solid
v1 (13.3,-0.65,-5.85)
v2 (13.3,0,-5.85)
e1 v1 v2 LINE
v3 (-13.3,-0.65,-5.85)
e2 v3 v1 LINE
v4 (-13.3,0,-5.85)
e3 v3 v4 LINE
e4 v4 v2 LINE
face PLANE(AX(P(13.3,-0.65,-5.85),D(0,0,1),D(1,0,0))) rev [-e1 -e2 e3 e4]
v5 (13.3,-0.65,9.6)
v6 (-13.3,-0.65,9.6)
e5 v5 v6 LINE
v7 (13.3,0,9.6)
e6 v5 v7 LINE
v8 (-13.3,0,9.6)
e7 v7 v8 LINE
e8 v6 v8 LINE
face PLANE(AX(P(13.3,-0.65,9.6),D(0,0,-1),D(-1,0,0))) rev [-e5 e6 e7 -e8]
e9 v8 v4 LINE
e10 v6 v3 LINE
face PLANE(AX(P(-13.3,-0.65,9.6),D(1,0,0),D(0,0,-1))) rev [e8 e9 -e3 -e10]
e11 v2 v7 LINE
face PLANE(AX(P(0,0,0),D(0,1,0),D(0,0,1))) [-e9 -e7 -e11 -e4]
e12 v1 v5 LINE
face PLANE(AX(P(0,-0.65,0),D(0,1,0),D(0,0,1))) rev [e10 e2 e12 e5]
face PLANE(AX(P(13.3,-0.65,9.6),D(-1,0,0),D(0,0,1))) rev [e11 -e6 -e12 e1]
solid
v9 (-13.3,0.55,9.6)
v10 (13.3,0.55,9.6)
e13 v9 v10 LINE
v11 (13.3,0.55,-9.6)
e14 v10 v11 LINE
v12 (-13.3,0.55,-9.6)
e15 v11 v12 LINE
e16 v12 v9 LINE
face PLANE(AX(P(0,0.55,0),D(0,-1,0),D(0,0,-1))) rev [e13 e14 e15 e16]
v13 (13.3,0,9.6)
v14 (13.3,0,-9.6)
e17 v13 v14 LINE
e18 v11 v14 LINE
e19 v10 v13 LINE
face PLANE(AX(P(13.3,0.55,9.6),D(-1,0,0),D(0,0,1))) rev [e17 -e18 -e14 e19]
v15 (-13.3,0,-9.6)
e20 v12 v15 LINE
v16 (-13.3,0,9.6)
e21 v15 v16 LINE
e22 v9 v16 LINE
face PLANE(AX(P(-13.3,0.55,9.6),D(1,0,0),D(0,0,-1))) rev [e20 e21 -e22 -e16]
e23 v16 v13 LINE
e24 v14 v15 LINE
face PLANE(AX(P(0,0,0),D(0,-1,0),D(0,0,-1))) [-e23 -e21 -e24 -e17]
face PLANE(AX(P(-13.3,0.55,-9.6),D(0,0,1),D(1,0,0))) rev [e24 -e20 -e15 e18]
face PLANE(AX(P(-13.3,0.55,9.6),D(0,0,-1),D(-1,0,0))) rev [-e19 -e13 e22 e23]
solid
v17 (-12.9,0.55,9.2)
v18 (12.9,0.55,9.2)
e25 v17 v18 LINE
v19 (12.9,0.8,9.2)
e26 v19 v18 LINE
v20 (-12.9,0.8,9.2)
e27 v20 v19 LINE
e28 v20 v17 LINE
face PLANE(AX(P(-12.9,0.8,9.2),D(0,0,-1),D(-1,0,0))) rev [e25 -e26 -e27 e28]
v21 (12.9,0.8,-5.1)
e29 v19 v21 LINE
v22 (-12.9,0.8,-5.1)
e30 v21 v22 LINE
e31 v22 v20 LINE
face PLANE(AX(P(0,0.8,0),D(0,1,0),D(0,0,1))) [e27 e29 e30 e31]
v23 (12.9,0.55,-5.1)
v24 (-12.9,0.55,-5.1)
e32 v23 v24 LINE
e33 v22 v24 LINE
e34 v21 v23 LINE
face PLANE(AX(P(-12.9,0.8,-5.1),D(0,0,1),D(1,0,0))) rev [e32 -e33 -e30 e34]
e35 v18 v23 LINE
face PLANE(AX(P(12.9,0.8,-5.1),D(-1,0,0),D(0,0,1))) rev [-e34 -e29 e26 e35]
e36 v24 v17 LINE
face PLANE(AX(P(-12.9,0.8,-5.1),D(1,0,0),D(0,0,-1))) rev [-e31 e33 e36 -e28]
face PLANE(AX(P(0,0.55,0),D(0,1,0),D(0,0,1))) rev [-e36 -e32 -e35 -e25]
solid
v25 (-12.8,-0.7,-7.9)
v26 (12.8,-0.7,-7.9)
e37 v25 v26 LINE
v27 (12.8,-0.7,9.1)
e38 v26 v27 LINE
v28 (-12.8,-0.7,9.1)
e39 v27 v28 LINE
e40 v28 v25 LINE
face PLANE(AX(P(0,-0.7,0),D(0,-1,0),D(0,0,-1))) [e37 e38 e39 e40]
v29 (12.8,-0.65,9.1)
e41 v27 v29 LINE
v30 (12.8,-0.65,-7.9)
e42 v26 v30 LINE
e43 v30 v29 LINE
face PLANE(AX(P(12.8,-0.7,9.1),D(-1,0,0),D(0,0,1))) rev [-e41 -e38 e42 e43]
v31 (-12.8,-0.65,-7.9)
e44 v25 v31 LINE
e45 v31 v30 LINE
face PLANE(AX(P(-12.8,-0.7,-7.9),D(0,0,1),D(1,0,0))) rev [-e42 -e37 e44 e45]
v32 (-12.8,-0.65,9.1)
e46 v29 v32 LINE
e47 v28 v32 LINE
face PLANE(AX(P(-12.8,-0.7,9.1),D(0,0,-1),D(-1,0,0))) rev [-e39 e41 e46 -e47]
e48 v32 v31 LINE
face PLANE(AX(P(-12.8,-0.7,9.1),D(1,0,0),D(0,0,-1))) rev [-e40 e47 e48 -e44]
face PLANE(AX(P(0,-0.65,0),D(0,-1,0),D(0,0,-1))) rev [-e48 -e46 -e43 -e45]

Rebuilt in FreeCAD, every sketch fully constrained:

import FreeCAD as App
import Part
import Sketcher
Q = App.Units.Quantity

doc = App.newDocument("Part")
body = doc.addObject("PartDesign::Body", "Body")

# Sketch on XZ plane
sketch1 = body.newObject("Sketcher::SketchObject", "Sketch")
sketch1.AttachmentSupport = (doc.getObject("XZ_Plane"), [""])
sketch1.MapMode = "FlatFace"
sketch1.addGeometry(Part.LineSegment(App.Vector(-13.3, -9.6, 0), App.Vector(-13.3, 9.6, 0)), False)
sketch1.addGeometry(Part.LineSegment(App.Vector(-13.3, 9.6, 0), App.Vector(13.3, 9.6, 0)), False)
sketch1.addGeometry(Part.LineSegment(App.Vector(13.3, 9.6, 0), App.Vector(13.3, -9.6, 0)), False)
sketch1.addGeometry(Part.LineSegment(App.Vector(13.3, -9.6, 0), App.Vector(-13.3, -9.6, 0)), False)
sketch1.addConstraint(Sketcher.Constraint("Coincident", 0, 2, 1, 1))
sketch1.addConstraint(Sketcher.Constraint("Coincident", 1, 2, 2, 1))
sketch1.addConstraint(Sketcher.Constraint("Coincident", 2, 2, 3, 1))
sketch1.addConstraint(Sketcher.Constraint("Coincident", 3, 2, 0, 1))
sketch1.addConstraint(Sketcher.Constraint("Vertical", 0))
sketch1.addConstraint(Sketcher.Constraint("Horizontal", 1))
sketch1.addConstraint(Sketcher.Constraint("Vertical", 2))
sketch1.addConstraint(Sketcher.Constraint("Horizontal", 3))
sketch1.addConstraint(Sketcher.Constraint("Symmetric", 0, 2, 2, 2, -1, 1))
sketch1.addConstraint(Sketcher.Constraint("DistanceX", 1, 1, 1, 2, Q("26.6 mm")))
sketch1.addConstraint(Sketcher.Constraint("DistanceY", 0, 1, 0, 2, Q("19.2 mm")))
pad1 = body.newObject("PartDesign::Pad", "Pad")
pad1.Profile = sketch1
pad1.Length = 0.55
pad1.Reversed = True
body2 = doc.addObject("PartDesign::Body", "Body001")

# Sketch on XZ plane
sketch2 = body2.newObject("Sketcher::SketchObject", "Sketch001")
sketch2.AttachmentSupport = (doc.getObject("XZ_Plane001"), [""])
sketch2.MapMode = "FlatFace"
sketch2.addGeometry(Part.LineSegment(App.Vector(-13.3, 9.6, 0), App.Vector(-13.3, -5.85, 0)), False)
sketch2.addGeometry(Part.LineSegment(App.Vector(-13.3, -5.85, 0), App.Vector(13.3, -5.85, 0)), False)
sketch2.addGeometry(Part.LineSegment(App.Vector(13.3, -5.85, 0), App.Vector(13.3, 9.6, 0)), False)
sketch2.addGeometry(Part.LineSegment(App.Vector(13.3, 9.6, 0), App.Vector(-13.3, 9.6, 0)), False)
sketch2.addConstraint(Sketcher.Constraint("Coincident", 0, 2, 1, 1))
sketch2.addConstraint(Sketcher.Constraint("Coincident", 1, 2, 2, 1))
sketch2.addConstraint(Sketcher.Constraint("Coincident", 2, 2, 3, 1))
sketch2.addConstraint(Sketcher.Constraint("Coincident", 3, 2, 0, 1))
sketch2.addConstraint(Sketcher.Constraint("Vertical", 0))
sketch2.addConstraint(Sketcher.Constraint("Horizontal", 1))
sketch2.addConstraint(Sketcher.Constraint("Vertical", 2))
sketch2.addConstraint(Sketcher.Constraint("Horizontal", 3))
sketch2.addConstraint(Sketcher.Constraint("DistanceX", 1, 1, 1, 2, Q("26.6 mm")))
sketch2.addConstraint(Sketcher.Constraint("DistanceY", 0, 2, 0, 1, Q("15.45 mm")))
sketch2.addConstraint(Sketcher.Constraint("DistanceX", 0, 2, -1, 1, Q("13.3 mm")))
sketch2.addConstraint(Sketcher.Constraint("DistanceY", -1, 1, 2, 2, Q("9.6 mm")))
pad2 = body2.newObject("PartDesign::Pad", "Pad001")
pad2.Profile = sketch2
pad2.Length = 0.65
body3 = doc.addObject("PartDesign::Body", "Body002")

# Sketch on XZ plane
sketch3 = body3.newObject("Sketcher::SketchObject", "Sketch002")
sketch3.AttachmentSupport = (doc.getObject("XZ_Plane002"), [""])
sketch3.MapMode = "FlatFace"
sketch3.AttachmentOffset = App.Placement(App.Vector(0, 0, 0.65), App.Rotation())
sketch3.addGeometry(Part.LineSegment(App.Vector(-12.8, 9.1, 0), App.Vector(-12.8, -7.9, 0)), False)
sketch3.addGeometry(Part.LineSegment(App.Vector(-12.8, -7.9, 0), App.Vector(12.8, -7.9, 0)), False)
sketch3.addGeometry(Part.LineSegment(App.Vector(12.8, -7.9, 0), App.Vector(12.8, 9.1, 0)), False)
sketch3.addGeometry(Part.LineSegment(App.Vector(12.8, 9.1, 0), App.Vector(-12.8, 9.1, 0)), False)
sketch3.addConstraint(Sketcher.Constraint("Coincident", 0, 2, 1, 1))
sketch3.addConstraint(Sketcher.Constraint("Coincident", 1, 2, 2, 1))
sketch3.addConstraint(Sketcher.Constraint("Coincident", 2, 2, 3, 1))
sketch3.addConstraint(Sketcher.Constraint("Coincident", 3, 2, 0, 1))
sketch3.addConstraint(Sketcher.Constraint("Vertical", 0))
sketch3.addConstraint(Sketcher.Constraint("Horizontal", 1))
sketch3.addConstraint(Sketcher.Constraint("Vertical", 2))
sketch3.addConstraint(Sketcher.Constraint("Horizontal", 3))
sketch3.addConstraint(Sketcher.Constraint("DistanceY", 0, 2, 0, 1, Q("17 mm")))
sketch3.addConstraint(Sketcher.Constraint("DistanceX", 1, 1, 1, 2, Q("25.6 mm")))
sketch3.addConstraint(Sketcher.Constraint("DistanceX", 0, 2, -1, 1, Q("12.8 mm")))
sketch3.addConstraint(Sketcher.Constraint("DistanceY", 0, 2, -1, 1, Q("7.9 mm")))
pad3 = body3.newObject("PartDesign::Pad", "Pad002")
pad3.Profile = sketch3
pad3.Length = 0.05
body4 = doc.addObject("PartDesign::Body", "Body003")

# Sketch on XZ plane
sketch4 = body4.newObject("Sketcher::SketchObject", "Sketch003")
sketch4.AttachmentSupport = (doc.getObject("XZ_Plane003"), [""])
sketch4.MapMode = "FlatFace"
sketch4.AttachmentOffset = App.Placement(App.Vector(0, 0, -0.55), App.Rotation())
sketch4.addGeometry(Part.LineSegment(App.Vector(-12.9, -5.1, 0), App.Vector(-12.9, 9.2, 0)), False)
sketch4.addGeometry(Part.LineSegment(App.Vector(-12.9, 9.2, 0), App.Vector(12.9, 9.2, 0)), False)
sketch4.addGeometry(Part.LineSegment(App.Vector(12.9, 9.2, 0), App.Vector(12.9, -5.1, 0)), False)
sketch4.addGeometry(Part.LineSegment(App.Vector(12.9, -5.1, 0), App.Vector(-12.9, -5.1, 0)), False)
sketch4.addConstraint(Sketcher.Constraint("Coincident", 0, 2, 1, 1))
sketch4.addConstraint(Sketcher.Constraint("Coincident", 1, 2, 2, 1))
sketch4.addConstraint(Sketcher.Constraint("Coincident", 2, 2, 3, 1))
sketch4.addConstraint(Sketcher.Constraint("Coincident", 3, 2, 0, 1))
sketch4.addConstraint(Sketcher.Constraint("Vertical", 0))
sketch4.addConstraint(Sketcher.Constraint("Horizontal", 1))
sketch4.addConstraint(Sketcher.Constraint("Vertical", 2))
sketch4.addConstraint(Sketcher.Constraint("Horizontal", 3))
sketch4.addConstraint(Sketcher.Constraint("DistanceX", 1, 1, 1, 2, Q("25.8 mm")))
sketch4.addConstraint(Sketcher.Constraint("DistanceY", 0, 1, 0, 2, Q("14.3 mm")))
sketch4.addConstraint(Sketcher.Constraint("DistanceX", 0, 2, -1, 1, Q("12.9 mm")))
sketch4.addConstraint(Sketcher.Constraint("DistanceY", -1, 1, 0, 2, Q("9.2 mm")))
pad4 = body4.newObject("PartDesign::Pad", "Pad003")
pad4.Profile = sketch4
pad4.Length = 0.25
pad4.Reversed = True

doc.recompute()
